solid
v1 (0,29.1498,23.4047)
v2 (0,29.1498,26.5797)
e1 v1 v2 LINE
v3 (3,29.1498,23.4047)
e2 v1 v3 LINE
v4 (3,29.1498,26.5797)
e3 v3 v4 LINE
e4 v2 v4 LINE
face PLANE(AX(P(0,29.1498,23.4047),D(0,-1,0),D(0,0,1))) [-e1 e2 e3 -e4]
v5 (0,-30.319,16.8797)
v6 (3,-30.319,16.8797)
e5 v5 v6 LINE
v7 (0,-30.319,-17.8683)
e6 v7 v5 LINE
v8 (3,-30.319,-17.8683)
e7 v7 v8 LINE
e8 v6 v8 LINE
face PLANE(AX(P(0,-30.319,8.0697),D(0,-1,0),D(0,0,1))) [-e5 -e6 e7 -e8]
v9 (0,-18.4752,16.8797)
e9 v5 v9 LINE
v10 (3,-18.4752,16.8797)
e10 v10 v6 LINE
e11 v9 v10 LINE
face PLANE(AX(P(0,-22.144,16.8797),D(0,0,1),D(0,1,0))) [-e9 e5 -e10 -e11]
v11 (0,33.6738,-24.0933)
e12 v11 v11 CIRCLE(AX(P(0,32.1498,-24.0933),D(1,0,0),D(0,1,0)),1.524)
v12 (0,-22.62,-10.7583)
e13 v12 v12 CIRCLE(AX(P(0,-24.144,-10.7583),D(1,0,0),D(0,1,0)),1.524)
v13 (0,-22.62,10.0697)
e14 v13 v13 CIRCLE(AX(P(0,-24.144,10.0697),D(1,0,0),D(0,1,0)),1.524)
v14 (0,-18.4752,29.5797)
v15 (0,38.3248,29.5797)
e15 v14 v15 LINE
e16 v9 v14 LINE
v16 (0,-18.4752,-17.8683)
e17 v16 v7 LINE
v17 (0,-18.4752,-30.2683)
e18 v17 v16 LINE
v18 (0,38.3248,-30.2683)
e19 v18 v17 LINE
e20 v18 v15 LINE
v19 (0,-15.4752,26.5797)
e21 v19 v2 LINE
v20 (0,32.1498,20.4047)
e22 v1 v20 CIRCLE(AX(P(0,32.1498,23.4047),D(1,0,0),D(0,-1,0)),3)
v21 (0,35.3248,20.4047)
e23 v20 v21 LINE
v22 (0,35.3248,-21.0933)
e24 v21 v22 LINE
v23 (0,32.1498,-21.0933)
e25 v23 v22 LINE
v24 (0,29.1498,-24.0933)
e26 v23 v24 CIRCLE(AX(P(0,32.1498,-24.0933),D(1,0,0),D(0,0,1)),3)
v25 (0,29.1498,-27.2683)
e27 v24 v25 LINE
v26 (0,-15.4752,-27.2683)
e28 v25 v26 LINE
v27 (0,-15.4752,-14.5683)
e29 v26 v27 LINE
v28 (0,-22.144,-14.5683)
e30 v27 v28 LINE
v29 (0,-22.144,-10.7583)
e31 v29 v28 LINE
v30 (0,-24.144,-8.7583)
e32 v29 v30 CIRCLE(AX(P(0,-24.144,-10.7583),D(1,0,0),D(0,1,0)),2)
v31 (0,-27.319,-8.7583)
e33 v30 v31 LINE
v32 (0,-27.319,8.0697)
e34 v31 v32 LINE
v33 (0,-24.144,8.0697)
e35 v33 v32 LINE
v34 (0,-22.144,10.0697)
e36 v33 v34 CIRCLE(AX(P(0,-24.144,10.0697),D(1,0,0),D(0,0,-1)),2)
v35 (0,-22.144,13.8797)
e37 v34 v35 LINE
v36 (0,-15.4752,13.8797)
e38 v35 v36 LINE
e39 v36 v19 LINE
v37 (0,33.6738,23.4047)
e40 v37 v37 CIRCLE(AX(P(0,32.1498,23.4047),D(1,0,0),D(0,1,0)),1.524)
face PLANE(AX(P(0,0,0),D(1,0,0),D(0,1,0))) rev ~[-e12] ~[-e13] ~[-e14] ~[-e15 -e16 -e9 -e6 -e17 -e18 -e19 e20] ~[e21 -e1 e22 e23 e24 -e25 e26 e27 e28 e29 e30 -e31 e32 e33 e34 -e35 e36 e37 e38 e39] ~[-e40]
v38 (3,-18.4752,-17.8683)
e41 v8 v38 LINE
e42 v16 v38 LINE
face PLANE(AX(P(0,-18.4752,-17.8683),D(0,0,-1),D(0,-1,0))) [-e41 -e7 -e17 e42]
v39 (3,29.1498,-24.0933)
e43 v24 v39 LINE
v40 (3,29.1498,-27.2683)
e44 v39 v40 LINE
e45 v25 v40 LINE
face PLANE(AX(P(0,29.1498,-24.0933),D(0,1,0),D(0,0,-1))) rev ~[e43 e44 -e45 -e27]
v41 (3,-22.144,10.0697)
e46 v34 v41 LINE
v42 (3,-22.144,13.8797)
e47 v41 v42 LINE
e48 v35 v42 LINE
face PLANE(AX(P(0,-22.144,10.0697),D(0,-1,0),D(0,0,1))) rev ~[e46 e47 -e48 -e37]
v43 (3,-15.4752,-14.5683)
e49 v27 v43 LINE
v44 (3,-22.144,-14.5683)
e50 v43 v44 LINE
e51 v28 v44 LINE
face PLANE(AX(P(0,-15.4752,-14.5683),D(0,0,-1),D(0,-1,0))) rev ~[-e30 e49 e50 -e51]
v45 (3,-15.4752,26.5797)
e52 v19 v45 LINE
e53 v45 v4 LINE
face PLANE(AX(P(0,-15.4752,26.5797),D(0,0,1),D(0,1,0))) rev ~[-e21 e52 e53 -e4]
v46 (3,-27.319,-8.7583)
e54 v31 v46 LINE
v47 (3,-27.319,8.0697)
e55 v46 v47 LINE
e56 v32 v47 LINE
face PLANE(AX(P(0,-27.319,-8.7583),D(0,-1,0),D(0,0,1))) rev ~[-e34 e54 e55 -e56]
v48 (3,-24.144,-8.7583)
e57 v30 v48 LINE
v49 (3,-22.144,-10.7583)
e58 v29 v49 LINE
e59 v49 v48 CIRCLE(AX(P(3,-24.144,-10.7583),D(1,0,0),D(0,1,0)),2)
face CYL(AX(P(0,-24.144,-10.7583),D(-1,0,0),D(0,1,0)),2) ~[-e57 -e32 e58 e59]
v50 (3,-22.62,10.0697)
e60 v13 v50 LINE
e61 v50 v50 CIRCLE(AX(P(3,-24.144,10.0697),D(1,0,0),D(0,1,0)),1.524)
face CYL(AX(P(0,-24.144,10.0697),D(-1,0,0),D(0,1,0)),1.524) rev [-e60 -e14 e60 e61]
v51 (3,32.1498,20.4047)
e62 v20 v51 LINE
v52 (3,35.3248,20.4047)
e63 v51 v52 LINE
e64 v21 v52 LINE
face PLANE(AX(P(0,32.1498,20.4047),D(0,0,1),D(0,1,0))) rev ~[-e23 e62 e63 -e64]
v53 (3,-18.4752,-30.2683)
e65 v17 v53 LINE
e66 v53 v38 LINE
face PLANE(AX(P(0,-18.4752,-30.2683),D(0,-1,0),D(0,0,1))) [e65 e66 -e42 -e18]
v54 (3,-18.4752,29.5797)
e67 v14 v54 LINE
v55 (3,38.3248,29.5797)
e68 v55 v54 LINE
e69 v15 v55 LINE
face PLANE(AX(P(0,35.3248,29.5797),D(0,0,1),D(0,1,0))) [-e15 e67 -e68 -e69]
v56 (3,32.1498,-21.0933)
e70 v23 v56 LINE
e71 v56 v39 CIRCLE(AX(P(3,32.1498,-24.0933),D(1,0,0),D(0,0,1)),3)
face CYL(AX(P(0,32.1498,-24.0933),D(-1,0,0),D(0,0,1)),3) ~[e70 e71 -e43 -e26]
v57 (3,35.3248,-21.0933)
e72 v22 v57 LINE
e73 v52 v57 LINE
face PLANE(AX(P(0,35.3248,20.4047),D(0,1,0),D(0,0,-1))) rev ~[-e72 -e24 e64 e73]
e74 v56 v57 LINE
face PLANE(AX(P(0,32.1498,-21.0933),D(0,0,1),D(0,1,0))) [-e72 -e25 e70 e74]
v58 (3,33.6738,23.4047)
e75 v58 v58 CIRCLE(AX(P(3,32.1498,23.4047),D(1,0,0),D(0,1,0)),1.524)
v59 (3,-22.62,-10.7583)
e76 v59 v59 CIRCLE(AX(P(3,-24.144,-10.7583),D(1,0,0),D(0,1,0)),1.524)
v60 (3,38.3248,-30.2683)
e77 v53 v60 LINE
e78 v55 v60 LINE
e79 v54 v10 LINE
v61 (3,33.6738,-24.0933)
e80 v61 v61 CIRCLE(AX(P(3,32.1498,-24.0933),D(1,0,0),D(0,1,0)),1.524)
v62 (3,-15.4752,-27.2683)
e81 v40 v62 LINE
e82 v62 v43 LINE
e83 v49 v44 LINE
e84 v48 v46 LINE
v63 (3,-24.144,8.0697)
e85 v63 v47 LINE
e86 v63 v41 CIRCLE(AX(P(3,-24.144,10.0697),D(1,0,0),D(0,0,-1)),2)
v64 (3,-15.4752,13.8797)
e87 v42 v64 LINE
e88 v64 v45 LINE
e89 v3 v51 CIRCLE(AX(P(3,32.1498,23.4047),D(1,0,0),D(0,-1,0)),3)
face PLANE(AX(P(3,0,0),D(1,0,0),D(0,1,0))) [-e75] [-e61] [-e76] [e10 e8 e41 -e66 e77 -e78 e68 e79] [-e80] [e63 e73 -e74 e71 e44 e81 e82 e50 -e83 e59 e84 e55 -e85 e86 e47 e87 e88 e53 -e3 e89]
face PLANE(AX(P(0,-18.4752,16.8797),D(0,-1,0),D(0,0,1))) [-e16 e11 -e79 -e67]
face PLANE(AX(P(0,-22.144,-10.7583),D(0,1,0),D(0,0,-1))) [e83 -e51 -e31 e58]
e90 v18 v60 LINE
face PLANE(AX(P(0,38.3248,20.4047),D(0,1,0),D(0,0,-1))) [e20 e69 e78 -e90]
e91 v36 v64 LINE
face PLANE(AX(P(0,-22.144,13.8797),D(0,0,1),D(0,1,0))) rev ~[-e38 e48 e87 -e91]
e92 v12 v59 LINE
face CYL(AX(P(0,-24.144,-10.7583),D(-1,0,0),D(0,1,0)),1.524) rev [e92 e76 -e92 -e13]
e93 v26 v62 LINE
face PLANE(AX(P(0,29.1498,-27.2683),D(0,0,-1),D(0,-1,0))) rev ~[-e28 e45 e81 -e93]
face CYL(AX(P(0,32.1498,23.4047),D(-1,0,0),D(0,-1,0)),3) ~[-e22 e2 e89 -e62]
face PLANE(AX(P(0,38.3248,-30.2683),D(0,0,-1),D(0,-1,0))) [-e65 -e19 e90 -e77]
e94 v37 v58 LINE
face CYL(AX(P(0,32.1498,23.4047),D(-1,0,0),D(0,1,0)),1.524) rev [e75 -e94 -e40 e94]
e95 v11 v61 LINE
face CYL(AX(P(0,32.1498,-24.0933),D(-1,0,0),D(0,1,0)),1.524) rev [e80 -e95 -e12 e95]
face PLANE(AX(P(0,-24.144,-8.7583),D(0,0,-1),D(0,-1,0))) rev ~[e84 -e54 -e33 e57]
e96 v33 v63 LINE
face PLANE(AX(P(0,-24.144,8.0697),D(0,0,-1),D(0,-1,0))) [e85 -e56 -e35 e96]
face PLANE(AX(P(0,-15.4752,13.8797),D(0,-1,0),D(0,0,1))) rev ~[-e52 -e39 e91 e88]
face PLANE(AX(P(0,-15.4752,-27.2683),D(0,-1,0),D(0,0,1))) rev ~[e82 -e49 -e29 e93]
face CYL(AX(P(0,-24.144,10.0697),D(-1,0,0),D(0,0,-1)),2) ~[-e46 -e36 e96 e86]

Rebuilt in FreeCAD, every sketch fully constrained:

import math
import FreeCAD as App
import Part
import Sketcher
Q = App.Units.Quantity

doc = App.newDocument("Part")
body = doc.addObject("PartDesign::Body", "Body")

# Sketch on YZ plane
sketch1 = doc.addObject("Sketcher::SketchObject", "Sketch")
body.addObject(sketch1)
sketch1.AttachmentSupport = (doc.YZ_Plane, [""])
sketch1.MapMode = "FlatFace"
sketch1.addGeometry(Part.LineSegment(App.Vector(38.3, 29.6, 0), App.Vector(-18.5, 29.6, 0)), False)
sketch1.addGeometry(Part.LineSegment(App.Vector(-18.5, 29.6, 0), App.Vector(-18.5, 16.9, 0)), False)
sketch1.addGeometry(Part.LineSegment(App.Vector(-18.5, 16.9, 0), App.Vector(-30.3, 16.9, 0)), False)
sketch1.addGeometry(Part.LineSegment(App.Vector(-30.3, 16.9, 0), App.Vector(-30.3, -17.9, 0)), False)
sketch1.addGeometry(Part.LineSegment(App.Vector(-30.3, -17.9, 0), App.Vector(-18.5, -17.9, 0)), False)
sketch1.addGeometry(Part.LineSegment(App.Vector(-18.5, -17.9, 0), App.Vector(-18.5, -30.3, 0)), False)
sketch1.addGeometry(Part.LineSegment(App.Vector(-18.5, -30.3, 0), App.Vector(38.3, -30.3, 0)), False)
sketch1.addGeometry(Part.LineSegment(App.Vector(38.3, -30.3, 0), App.Vector(38.3, 29.6, 0)), False)
sketch1.addGeometry(Part.LineSegment(App.Vector(35.3, 20.4, 0), App.Vector(35.3, -21.1, 0)), False)
sketch1.addGeometry(Part.LineSegment(App.Vector(35.3, -21.1, 0), App.Vector(32.1, -21.1, 0)), False)
sketch1.addGeometry(Part.ArcOfCircle(Part.Circle(App.Vector(32.1, -24.1, 0), App.Vector(0, 0, 1), 3), math.radians(90), math.radians(180)), False)
sketch1.addGeometry(Part.LineSegment(App.Vector(29.1, -24.1, 0), App.Vector(29.1, -27.3, 0)), False)
sketch1.addGeometry(Part.LineSegment(App.Vector(29.1, -27.3, 0), App.Vector(-15.5, -27.3, 0)), False)
sketch1.addGeometry(Part.LineSegment(App.Vector(-15.5, -27.3, 0), App.Vector(-15.5, -14.6, 0)), False)
sketch1.addGeometry(Part.LineSegment(App.Vector(-15.5, -14.6, 0), App.Vector(-22.1, -14.6, 0)), False)
sketch1.addGeometry(Part.LineSegment(App.Vector(-22.1, -14.6, 0), App.Vector(-22.1, -10.8, 0)), False)
sketch1.addGeometry(Part.ArcOfCircle(Part.Circle(App.Vector(-24.1, -10.8, 0), App.Vector(0, 0, 1), 2), math.radians(0), math.radians(90)), False)
sketch1.addGeometry(Part.LineSegment(App.Vector(-24.1, -8.8, 0), App.Vector(-27.3, -8.8, 0)), False)
sketch1.addGeometry(Part.LineSegment(App.Vector(-27.3, -8.8, 0), App.Vector(-27.3, 8.1, 0)), False)
sketch1.addGeometry(Part.LineSegment(App.Vector(-27.3, 8.1, 0), App.Vector(-24.1, 8.1, 0)), False)
sketch1.addGeometry(Part.ArcOfCircle(Part.Circle(App.Vector(-24.1, 10.1, 0), App.Vector(0, 0, 1), 2), math.radians(-90), math.radians(0)), False)
sketch1.addGeometry(Part.LineSegment(App.Vector(-22.1, 10.1, 0), App.Vector(-22.1, 13.9, 0)), False)
sketch1.addGeometry(Part.LineSegment(App.Vector(-22.1, 13.9, 0), App.Vector(-15.5, 13.9, 0)), False)
sketch1.addGeometry(Part.LineSegment(App.Vector(-15.5, 13.9, 0), App.Vector(-15.5, 26.6, 0)), False)
sketch1.addGeometry(Part.LineSegment(App.Vector(-15.5, 26.6, 0), App.Vector(29.1, 26.6, 0)), False)
sketch1.addGeometry(Part.LineSegment(App.Vector(29.1, 26.6, 0), App.Vector(29.1, 23.4, 0)), False)
sketch1.addGeometry(Part.ArcOfCircle(Part.Circle(App.Vector(32.1, 23.4, 0), App.Vector(0, 0, 1), 3), math.radians(180), math.radians(270)), False)
sketch1.addGeometry(Part.LineSegment(App.Vector(32.1, 20.4, 0), App.Vector(35.3, 20.4, 0)), False)
sketch1.addGeometry(Part.Circle(App.Vector(32.1, 23.4, 0), App.Vector(0, 0, 1), 1.5), False)
sketch1.addGeometry(Part.Circle(App.Vector(32.1, -24.1, 0), App.Vector(0, 0, 1), 1.5), False)
sketch1.addGeometry(Part.Circle(App.Vector(-24.1, 10.1, 0), App.Vector(0, 0, 1), 1.5), False)
sketch1.addGeometry(Part.Circle(App.Vector(-24.1, -10.8, 0), App.Vector(0, 0, 1), 1.5), False)
sketch1.addConstraint(Sketcher.Constraint("Coincident", 0, 2, 1, 1))
sketch1.addConstraint(Sketcher.Constraint("Coincident", 1, 2, 2, 1))
sketch1.addConstraint(Sketcher.Constraint("Coincident", 2, 2, 3, 1))
sketch1.addConstraint(Sketcher.Constraint("Coincident", 3, 2, 4, 1))
sketch1.addConstraint(Sketcher.Constraint("Coincident", 4, 2, 5, 1))
sketch1.addConstraint(Sketcher.Constraint("Coincident", 5, 2, 6, 1))
sketch1.addConstraint(Sketcher.Constraint("Coincident", 6, 2, 7, 1))
sketch1.addConstraint(Sketcher.Constraint("Coincident", 7, 2, 0, 1))
sketch1.addConstraint(Sketcher.Constraint("Coincident", 8, 2, 9, 1))
sketch1.addConstraint(Sketcher.Constraint("Tangent", 9, 2, 10, 1))
sketch1.addConstraint(Sketcher.Constraint("Tangent", 10, 2, 11, 1))
sketch1.addConstraint(Sketcher.Constraint("Coincident", 11, 2, 12, 1))
sketch1.addConstraint(Sketcher.Constraint("Coincident", 12, 2, 13, 1))
sketch1.addConstraint(Sketcher.Constraint("Coincident", 13, 2, 14, 1))
sketch1.addConstraint(Sketcher.Constraint("Coincident", 14, 2, 15, 1))
sketch1.addConstraint(Sketcher.Constraint("Tangent", 15, 2, 16, 1))
sketch1.addConstraint(Sketcher.Constraint("Tangent", 16, 2, 17, 1))
sketch1.addConstraint(Sketcher.Constraint("Coincident", 17, 2, 18, 1))
sketch1.addConstraint(Sketcher.Constraint("Coincident", 18, 2, 19, 1))
sketch1.addConstraint(Sketcher.Constraint("Tangent", 19, 2, 20, 1))
sketch1.addConstraint(Sketcher.Constraint("Tangent", 20, 2, 21, 1))
sketch1.addConstraint(Sketcher.Constraint("Coincident", 21, 2, 22, 1))
sketch1.addConstraint(Sketcher.Constraint("Coincident", 22, 2, 23, 1))
sketch1.addConstraint(Sketcher.Constraint("Coincident", 23, 2, 24, 1))
sketch1.addConstraint(Sketcher.Constraint("Coincident", 24, 2, 25, 1))
sketch1.addConstraint(Sketcher.Constraint("Tangent", 25, 2, 26, 1))
sketch1.addConstraint(Sketcher.Constraint("Tangent", 26, 2, 27, 1))
sketch1.addConstraint(Sketcher.Constraint("Coincident", 27, 2, 8, 1))
sketch1.addConstraint(Sketcher.Constraint("Horizontal", 0))
sketch1.addConstraint(Sketcher.Constraint("Vertical", 1))
sketch1.addConstraint(Sketcher.Constraint("Horizontal", 2))
sketch1.addConstraint(Sketcher.Constraint("Vertical", 3))
sketch1.addConstraint(Sketcher.Constraint("Horizontal", 4))
sketch1.addConstraint(Sketcher.Constraint("Vertical", 5))
sketch1.addConstraint(Sketcher.Constraint("Horizontal", 6))
sketch1.addConstraint(Sketcher.Constraint("Vertical", 7))
sketch1.addConstraint(Sketcher.Constraint("Vertical", 8))
sketch1.addConstraint(Sketcher.Constraint("Horizontal", 9))
sketch1.addConstraint(Sketcher.Constraint("Vertical", 11))
sketch1.addConstraint(Sketcher.Constraint("Horizontal", 12))
sketch1.addConstraint(Sketcher.Constraint("Vertical", 13))
sketch1.addConstraint(Sketcher.Constraint("Horizontal", 14))
sketch1.addConstraint(Sketcher.Constraint("Vertical", 15))
sketch1.addConstraint(Sketcher.Constraint("Horizontal", 17))
sketch1.addConstraint(Sketcher.Constraint("Vertical", 18))
sketch1.addConstraint(Sketcher.Constraint("Horizontal", 19))
sketch1.addConstraint(Sketcher.Constraint("Vertical", 21))
sketch1.addConstraint(Sketcher.Constraint("Horizontal", 22))
sketch1.addConstraint(Sketcher.Constraint("Vertical", 23))
sketch1.addConstraint(Sketcher.Constraint("Horizontal", 24))
sketch1.addConstraint(Sketcher.Constraint("Vertical", 25))
sketch1.addConstraint(Sketcher.Constraint("Horizontal", 27))
sketch1.addConstraint(Sketcher.Constraint("Coincident", 28, 3, 26, 3))
sketch1.addConstraint(Sketcher.Constraint("Coincident", 29, 3, 10, 3))
sketch1.addConstraint(Sketcher.Constraint("Coincident", 30, 3, 20, 3))
sketch1.addConstraint(Sketcher.Constraint("Coincident", 31, 3, 16, 3))
sketch1.addConstraint(Sketcher.Constraint("Equal", 16, 20))
sketch1.addConstraint(Sketcher.Constraint("Equal", 10, 26))
sketch1.addConstraint(Sketcher.Constraint("Equal", 28, 29))
sketch1.addConstraint(Sketcher.Constraint("Equal", 29, 30))
sketch1.addConstraint(Sketcher.Constraint("Equal", 30, 31))
sketch1.addConstraint(Sketcher.Constraint("Vertical", 16, 3, 20, 3))
sketch1.addConstraint(Sketcher.Constraint("Vertical", 10, 3, 26, 3))
sketch1.addConstraint(Sketcher.Constraint("Vertical", 1, 2, 4, 2))
sketch1.addConstraint(Sketcher.Constraint("Vertical", 13, 2, 22, 2))
sketch1.addConstraint(Sketcher.Constraint("Equal", 9, 17))
sketch1.addConstraint(Sketcher.Constraint("Equal", 27, 11))
sketch1.addConstraint(Sketcher.Constraint("Equal", 1, 13))
sketch1.addConstraint(Sketcher.Constraint("Equal", 15, 21))
sketch1.addConstraint(Sketcher.Constraint("Equal", 13, 23))
sketch1.addConstraint(Sketcher.Constraint("Equal", 11, 25))
sketch1.addConstraint(Sketcher.Constraint("Diameter", 28, Q("0.12 in")))
sketch1.addConstraint(Sketcher.Constraint("DistanceY", 1, 2, 1, 1, Q("0.5 in")))
sketch1.addConstraint(Sketcher.Constraint("DistanceY", 15, 1, 15, 2, Q("0.15 in")))
sketch1.addConstraint(Sketcher.Constraint("Radius", 10, Q("0.1181 in")))
sketch1.addConstraint(Sketcher.Constraint("DistanceX", 9, 2, 9, 1, Q("0.125 in")))
sketch1.addConstraint(Sketcher.Constraint("Radius", 16, Q("2 mm")))
sketch1.addConstraint(Sketcher.Constraint("DistanceY", 16, 3, 20, 3, Q("0.82 in")))
sketch1.addConstraint(Sketcher.Constraint("DistanceX", 2, 2, 2, 1, Q("0.4663 in")))
sketch1.addConstraint(Sketcher.Constraint("DistanceX", 12, 2, 12, 1, Q("1.7569 in")))
sketch1.addConstraint(Sketcher.Constraint("DistanceY", 5, 2, 5, 1, Q("0.4882 in")))
sketch1.addConstraint(Sketcher.Constraint("DistanceX", 0, 2, 0, 1, Q("56.8 mm")))
sketch1.addConstraint(Sketcher.Constraint("DistanceX", 14, 2, 14, 1, Q("6.6688 mm")))
sketch1.addConstraint(Sketcher.Constraint("DistanceY", 3, 2, 3, 1, Q("34.748 mm")))
sketch1.addConstraint(Sketcher.Constraint("DistanceX", 14, 2, -1, 1, Q("0.8718 in")))
sketch1.addConstraint(Sketcher.Constraint("DistanceY", -1, 1, 18, 2, Q("0.3177 in")))
sketch1.addConstraint(Sketcher.Constraint("DistanceY", 20, 3, 0, 2, Q("0.7681 in")))
sketch1.addConstraint(Sketcher.Constraint("DistanceX", 0, 2, 26, 3, Q("1.9931 in")))
pad1 = doc.addObject("PartDesign::Pad", "Pad")
body.addObject(pad1)
pad1.Profile = sketch1
pad1.Length = Q("0.1181102 in")

doc.recompute()
